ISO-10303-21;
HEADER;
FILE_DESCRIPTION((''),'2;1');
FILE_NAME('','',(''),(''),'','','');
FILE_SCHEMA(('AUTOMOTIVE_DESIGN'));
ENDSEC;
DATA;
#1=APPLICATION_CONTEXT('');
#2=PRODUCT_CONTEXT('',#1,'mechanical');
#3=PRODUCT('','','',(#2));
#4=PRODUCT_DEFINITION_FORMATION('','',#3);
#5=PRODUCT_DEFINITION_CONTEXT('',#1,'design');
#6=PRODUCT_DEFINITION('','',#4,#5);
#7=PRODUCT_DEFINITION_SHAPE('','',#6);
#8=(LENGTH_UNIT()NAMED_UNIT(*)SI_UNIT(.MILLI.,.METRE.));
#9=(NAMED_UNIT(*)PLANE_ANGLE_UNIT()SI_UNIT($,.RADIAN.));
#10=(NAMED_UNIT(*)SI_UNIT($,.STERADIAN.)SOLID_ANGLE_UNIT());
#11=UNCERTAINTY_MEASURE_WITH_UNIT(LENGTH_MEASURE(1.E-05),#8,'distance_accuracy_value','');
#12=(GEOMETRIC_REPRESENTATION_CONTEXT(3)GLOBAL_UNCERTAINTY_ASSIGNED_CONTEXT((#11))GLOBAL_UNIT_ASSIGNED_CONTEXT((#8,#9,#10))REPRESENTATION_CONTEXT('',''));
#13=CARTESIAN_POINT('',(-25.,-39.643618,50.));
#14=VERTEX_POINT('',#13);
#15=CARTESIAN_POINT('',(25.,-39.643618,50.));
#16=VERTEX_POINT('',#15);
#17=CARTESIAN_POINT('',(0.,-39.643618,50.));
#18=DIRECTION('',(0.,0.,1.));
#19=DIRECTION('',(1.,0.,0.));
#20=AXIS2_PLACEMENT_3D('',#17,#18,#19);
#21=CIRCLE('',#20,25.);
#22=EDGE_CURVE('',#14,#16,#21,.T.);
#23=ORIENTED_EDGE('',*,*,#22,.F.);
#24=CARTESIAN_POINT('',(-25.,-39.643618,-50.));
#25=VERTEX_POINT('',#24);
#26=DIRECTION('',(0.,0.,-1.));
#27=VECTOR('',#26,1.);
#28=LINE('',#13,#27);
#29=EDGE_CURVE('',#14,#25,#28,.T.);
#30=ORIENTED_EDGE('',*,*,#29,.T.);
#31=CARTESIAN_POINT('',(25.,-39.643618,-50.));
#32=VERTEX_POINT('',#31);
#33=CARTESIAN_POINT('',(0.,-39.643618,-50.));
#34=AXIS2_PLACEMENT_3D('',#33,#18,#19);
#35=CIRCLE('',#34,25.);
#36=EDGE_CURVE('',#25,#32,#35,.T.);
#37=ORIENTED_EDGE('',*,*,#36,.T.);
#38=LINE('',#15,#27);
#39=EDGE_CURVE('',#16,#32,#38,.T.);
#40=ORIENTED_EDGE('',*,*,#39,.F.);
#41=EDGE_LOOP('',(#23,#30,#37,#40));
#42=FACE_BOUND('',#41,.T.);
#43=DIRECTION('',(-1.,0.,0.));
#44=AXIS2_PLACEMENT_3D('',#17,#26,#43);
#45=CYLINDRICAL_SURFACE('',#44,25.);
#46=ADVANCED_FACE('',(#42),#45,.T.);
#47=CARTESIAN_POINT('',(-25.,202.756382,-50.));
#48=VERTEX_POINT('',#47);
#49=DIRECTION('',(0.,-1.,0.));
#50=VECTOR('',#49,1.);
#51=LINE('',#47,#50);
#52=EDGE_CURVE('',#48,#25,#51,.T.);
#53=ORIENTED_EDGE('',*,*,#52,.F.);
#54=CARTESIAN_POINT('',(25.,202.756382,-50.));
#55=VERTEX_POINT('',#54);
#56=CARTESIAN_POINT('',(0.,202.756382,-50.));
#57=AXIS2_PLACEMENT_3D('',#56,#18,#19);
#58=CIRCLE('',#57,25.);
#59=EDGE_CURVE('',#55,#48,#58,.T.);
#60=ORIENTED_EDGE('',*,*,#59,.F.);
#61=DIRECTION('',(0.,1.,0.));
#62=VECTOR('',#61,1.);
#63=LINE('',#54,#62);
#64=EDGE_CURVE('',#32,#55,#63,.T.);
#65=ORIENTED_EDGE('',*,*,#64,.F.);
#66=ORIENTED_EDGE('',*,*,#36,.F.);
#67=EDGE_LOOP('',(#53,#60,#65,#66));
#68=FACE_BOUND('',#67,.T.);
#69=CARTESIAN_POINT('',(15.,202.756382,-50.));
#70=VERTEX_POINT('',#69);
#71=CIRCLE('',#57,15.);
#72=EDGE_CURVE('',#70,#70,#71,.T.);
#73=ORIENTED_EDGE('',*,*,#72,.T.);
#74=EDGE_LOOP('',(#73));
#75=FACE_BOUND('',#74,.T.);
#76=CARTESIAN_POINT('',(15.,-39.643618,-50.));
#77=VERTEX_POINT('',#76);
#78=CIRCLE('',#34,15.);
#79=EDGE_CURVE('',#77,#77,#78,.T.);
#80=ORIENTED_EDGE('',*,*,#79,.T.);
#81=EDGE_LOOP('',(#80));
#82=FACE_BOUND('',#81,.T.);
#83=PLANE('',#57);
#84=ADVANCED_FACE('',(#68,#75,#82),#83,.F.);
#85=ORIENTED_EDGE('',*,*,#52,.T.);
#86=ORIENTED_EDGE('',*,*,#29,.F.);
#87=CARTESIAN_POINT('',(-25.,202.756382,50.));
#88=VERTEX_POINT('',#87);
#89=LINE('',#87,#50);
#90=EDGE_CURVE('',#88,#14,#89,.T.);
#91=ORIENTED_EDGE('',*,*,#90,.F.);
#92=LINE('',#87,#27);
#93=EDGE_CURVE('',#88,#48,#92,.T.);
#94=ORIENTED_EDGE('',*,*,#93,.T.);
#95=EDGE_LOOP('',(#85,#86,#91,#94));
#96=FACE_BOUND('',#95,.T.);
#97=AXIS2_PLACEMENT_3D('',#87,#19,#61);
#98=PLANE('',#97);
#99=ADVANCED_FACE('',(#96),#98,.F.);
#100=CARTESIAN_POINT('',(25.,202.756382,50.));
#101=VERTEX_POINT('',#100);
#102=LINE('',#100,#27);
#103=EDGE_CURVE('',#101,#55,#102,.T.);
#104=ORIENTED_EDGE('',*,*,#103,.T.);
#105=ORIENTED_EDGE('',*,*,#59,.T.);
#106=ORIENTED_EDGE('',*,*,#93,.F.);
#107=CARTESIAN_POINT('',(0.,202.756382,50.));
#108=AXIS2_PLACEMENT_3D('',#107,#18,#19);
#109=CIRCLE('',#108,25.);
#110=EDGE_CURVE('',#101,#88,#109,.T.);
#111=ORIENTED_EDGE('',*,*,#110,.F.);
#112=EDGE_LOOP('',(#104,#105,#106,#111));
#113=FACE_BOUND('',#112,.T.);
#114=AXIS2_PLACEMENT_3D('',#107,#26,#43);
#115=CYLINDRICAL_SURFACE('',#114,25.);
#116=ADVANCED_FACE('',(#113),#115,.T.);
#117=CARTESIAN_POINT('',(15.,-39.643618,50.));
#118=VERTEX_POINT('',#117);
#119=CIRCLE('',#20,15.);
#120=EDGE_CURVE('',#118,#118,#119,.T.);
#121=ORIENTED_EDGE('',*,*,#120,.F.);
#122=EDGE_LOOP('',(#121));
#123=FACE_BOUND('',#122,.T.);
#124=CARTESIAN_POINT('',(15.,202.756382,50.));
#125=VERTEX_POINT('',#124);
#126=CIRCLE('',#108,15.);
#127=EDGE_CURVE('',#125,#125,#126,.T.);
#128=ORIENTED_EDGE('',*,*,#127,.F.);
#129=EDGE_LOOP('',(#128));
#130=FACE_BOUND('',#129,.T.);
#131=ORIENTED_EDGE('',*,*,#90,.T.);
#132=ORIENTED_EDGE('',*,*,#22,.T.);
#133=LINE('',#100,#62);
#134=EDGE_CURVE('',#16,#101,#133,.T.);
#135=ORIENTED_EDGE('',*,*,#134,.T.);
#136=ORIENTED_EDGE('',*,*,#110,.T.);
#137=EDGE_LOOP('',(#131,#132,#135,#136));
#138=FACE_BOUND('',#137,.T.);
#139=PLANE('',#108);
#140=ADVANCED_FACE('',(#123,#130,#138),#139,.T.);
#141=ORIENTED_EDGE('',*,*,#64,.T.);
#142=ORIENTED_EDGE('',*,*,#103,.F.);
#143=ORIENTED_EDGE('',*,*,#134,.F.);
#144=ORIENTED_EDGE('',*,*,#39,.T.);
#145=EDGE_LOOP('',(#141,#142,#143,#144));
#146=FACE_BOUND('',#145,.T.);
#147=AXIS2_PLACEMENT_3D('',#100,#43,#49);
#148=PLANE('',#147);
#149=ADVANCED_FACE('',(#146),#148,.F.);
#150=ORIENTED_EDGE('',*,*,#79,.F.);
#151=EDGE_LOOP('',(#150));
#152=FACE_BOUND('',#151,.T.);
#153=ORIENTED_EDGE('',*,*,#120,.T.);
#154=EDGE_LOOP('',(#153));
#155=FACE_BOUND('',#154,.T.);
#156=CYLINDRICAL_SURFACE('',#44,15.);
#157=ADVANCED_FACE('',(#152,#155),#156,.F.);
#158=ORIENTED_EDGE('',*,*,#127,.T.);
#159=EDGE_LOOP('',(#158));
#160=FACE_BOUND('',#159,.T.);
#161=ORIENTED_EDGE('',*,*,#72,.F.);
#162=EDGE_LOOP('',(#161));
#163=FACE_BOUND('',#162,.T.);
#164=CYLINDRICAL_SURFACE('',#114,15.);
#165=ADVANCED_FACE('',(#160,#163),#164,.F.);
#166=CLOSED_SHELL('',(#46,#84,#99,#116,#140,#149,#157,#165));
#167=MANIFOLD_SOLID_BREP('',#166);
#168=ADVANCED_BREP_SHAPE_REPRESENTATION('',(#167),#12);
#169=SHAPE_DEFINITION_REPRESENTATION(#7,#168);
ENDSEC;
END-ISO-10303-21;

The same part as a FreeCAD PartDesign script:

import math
import FreeCAD as App
import Part
import Sketcher
from FreeCAD import Vector

doc = App.newDocument("Part")
body = doc.addObject("PartDesign::Body", "Body")

# Sketch on XY plane
sketch1 = doc.addObject("Sketcher::SketchObject", "Sketch")
body.addObject(sketch1)
sketch1.AttachmentSupport = (doc.XY_Plane, [""])
sketch1.MapMode = "FlatFace"
sketch1.addGeometry([
    Part.LineSegment(Vector(25, -39.643618, 0), Vector(25, 202.756382, 0)),  # 0
    Part.ArcOfCircle(Part.Circle(Vector(0, 202.756382, 0), Vector(0, 0, 1), 25), math.radians(0), math.radians(180)),  # 1
    Part.LineSegment(Vector(-25, 202.756382, 0), Vector(-25, -39.643618, 0)),  # 2
    Part.ArcOfCircle(Part.Circle(Vector(0, -39.643618, 0), Vector(0, 0, 1), 25), math.radians(180), math.radians(360)),  # 3
    Part.Circle(Vector(0, -39.643618, 0), Vector(0, 0, 1), 15),  # 4
    Part.Circle(Vector(0, 202.756382, 0), Vector(0, 0, 1), 15),  # 5
], False)
sketch1.addConstraint([
    Sketcher.Constraint("Tangent", 0, 2, 1, 1),
    Sketcher.Constraint("Tangent", 1, 2, 2, 1),
    Sketcher.Constraint("Tangent", 2, 2, 3, 1),
    Sketcher.Constraint("Tangent", 3, 2, 0, 1),
    Sketcher.Constraint("Vertical", 0),
    Sketcher.Constraint("Vertical", 2),
    Sketcher.Constraint("Coincident", 4, 3, 3, 3),
    Sketcher.Constraint("Coincident", 5, 3, 1, 3),
    Sketcher.Constraint("Equal", 4, 5),
    Sketcher.Constraint("PointOnObject", 1, 3, -2),
    Sketcher.Constraint("Diameter", 4, 30.0),
    Sketcher.Constraint("Radius", 1, 25.0),
    Sketcher.Constraint("DistanceY", 0, 1, 0, 2, 242.4),
    Sketcher.Constraint("DistanceY", -1, 1, 1, 3, 202.756382),
])
pad1 = doc.addObject("PartDesign::Pad", "Pad")
body.addObject(pad1)
pad1.Profile = sketch1
pad1.Length = 100
pad1.Midplane = True

doc.recompute()
